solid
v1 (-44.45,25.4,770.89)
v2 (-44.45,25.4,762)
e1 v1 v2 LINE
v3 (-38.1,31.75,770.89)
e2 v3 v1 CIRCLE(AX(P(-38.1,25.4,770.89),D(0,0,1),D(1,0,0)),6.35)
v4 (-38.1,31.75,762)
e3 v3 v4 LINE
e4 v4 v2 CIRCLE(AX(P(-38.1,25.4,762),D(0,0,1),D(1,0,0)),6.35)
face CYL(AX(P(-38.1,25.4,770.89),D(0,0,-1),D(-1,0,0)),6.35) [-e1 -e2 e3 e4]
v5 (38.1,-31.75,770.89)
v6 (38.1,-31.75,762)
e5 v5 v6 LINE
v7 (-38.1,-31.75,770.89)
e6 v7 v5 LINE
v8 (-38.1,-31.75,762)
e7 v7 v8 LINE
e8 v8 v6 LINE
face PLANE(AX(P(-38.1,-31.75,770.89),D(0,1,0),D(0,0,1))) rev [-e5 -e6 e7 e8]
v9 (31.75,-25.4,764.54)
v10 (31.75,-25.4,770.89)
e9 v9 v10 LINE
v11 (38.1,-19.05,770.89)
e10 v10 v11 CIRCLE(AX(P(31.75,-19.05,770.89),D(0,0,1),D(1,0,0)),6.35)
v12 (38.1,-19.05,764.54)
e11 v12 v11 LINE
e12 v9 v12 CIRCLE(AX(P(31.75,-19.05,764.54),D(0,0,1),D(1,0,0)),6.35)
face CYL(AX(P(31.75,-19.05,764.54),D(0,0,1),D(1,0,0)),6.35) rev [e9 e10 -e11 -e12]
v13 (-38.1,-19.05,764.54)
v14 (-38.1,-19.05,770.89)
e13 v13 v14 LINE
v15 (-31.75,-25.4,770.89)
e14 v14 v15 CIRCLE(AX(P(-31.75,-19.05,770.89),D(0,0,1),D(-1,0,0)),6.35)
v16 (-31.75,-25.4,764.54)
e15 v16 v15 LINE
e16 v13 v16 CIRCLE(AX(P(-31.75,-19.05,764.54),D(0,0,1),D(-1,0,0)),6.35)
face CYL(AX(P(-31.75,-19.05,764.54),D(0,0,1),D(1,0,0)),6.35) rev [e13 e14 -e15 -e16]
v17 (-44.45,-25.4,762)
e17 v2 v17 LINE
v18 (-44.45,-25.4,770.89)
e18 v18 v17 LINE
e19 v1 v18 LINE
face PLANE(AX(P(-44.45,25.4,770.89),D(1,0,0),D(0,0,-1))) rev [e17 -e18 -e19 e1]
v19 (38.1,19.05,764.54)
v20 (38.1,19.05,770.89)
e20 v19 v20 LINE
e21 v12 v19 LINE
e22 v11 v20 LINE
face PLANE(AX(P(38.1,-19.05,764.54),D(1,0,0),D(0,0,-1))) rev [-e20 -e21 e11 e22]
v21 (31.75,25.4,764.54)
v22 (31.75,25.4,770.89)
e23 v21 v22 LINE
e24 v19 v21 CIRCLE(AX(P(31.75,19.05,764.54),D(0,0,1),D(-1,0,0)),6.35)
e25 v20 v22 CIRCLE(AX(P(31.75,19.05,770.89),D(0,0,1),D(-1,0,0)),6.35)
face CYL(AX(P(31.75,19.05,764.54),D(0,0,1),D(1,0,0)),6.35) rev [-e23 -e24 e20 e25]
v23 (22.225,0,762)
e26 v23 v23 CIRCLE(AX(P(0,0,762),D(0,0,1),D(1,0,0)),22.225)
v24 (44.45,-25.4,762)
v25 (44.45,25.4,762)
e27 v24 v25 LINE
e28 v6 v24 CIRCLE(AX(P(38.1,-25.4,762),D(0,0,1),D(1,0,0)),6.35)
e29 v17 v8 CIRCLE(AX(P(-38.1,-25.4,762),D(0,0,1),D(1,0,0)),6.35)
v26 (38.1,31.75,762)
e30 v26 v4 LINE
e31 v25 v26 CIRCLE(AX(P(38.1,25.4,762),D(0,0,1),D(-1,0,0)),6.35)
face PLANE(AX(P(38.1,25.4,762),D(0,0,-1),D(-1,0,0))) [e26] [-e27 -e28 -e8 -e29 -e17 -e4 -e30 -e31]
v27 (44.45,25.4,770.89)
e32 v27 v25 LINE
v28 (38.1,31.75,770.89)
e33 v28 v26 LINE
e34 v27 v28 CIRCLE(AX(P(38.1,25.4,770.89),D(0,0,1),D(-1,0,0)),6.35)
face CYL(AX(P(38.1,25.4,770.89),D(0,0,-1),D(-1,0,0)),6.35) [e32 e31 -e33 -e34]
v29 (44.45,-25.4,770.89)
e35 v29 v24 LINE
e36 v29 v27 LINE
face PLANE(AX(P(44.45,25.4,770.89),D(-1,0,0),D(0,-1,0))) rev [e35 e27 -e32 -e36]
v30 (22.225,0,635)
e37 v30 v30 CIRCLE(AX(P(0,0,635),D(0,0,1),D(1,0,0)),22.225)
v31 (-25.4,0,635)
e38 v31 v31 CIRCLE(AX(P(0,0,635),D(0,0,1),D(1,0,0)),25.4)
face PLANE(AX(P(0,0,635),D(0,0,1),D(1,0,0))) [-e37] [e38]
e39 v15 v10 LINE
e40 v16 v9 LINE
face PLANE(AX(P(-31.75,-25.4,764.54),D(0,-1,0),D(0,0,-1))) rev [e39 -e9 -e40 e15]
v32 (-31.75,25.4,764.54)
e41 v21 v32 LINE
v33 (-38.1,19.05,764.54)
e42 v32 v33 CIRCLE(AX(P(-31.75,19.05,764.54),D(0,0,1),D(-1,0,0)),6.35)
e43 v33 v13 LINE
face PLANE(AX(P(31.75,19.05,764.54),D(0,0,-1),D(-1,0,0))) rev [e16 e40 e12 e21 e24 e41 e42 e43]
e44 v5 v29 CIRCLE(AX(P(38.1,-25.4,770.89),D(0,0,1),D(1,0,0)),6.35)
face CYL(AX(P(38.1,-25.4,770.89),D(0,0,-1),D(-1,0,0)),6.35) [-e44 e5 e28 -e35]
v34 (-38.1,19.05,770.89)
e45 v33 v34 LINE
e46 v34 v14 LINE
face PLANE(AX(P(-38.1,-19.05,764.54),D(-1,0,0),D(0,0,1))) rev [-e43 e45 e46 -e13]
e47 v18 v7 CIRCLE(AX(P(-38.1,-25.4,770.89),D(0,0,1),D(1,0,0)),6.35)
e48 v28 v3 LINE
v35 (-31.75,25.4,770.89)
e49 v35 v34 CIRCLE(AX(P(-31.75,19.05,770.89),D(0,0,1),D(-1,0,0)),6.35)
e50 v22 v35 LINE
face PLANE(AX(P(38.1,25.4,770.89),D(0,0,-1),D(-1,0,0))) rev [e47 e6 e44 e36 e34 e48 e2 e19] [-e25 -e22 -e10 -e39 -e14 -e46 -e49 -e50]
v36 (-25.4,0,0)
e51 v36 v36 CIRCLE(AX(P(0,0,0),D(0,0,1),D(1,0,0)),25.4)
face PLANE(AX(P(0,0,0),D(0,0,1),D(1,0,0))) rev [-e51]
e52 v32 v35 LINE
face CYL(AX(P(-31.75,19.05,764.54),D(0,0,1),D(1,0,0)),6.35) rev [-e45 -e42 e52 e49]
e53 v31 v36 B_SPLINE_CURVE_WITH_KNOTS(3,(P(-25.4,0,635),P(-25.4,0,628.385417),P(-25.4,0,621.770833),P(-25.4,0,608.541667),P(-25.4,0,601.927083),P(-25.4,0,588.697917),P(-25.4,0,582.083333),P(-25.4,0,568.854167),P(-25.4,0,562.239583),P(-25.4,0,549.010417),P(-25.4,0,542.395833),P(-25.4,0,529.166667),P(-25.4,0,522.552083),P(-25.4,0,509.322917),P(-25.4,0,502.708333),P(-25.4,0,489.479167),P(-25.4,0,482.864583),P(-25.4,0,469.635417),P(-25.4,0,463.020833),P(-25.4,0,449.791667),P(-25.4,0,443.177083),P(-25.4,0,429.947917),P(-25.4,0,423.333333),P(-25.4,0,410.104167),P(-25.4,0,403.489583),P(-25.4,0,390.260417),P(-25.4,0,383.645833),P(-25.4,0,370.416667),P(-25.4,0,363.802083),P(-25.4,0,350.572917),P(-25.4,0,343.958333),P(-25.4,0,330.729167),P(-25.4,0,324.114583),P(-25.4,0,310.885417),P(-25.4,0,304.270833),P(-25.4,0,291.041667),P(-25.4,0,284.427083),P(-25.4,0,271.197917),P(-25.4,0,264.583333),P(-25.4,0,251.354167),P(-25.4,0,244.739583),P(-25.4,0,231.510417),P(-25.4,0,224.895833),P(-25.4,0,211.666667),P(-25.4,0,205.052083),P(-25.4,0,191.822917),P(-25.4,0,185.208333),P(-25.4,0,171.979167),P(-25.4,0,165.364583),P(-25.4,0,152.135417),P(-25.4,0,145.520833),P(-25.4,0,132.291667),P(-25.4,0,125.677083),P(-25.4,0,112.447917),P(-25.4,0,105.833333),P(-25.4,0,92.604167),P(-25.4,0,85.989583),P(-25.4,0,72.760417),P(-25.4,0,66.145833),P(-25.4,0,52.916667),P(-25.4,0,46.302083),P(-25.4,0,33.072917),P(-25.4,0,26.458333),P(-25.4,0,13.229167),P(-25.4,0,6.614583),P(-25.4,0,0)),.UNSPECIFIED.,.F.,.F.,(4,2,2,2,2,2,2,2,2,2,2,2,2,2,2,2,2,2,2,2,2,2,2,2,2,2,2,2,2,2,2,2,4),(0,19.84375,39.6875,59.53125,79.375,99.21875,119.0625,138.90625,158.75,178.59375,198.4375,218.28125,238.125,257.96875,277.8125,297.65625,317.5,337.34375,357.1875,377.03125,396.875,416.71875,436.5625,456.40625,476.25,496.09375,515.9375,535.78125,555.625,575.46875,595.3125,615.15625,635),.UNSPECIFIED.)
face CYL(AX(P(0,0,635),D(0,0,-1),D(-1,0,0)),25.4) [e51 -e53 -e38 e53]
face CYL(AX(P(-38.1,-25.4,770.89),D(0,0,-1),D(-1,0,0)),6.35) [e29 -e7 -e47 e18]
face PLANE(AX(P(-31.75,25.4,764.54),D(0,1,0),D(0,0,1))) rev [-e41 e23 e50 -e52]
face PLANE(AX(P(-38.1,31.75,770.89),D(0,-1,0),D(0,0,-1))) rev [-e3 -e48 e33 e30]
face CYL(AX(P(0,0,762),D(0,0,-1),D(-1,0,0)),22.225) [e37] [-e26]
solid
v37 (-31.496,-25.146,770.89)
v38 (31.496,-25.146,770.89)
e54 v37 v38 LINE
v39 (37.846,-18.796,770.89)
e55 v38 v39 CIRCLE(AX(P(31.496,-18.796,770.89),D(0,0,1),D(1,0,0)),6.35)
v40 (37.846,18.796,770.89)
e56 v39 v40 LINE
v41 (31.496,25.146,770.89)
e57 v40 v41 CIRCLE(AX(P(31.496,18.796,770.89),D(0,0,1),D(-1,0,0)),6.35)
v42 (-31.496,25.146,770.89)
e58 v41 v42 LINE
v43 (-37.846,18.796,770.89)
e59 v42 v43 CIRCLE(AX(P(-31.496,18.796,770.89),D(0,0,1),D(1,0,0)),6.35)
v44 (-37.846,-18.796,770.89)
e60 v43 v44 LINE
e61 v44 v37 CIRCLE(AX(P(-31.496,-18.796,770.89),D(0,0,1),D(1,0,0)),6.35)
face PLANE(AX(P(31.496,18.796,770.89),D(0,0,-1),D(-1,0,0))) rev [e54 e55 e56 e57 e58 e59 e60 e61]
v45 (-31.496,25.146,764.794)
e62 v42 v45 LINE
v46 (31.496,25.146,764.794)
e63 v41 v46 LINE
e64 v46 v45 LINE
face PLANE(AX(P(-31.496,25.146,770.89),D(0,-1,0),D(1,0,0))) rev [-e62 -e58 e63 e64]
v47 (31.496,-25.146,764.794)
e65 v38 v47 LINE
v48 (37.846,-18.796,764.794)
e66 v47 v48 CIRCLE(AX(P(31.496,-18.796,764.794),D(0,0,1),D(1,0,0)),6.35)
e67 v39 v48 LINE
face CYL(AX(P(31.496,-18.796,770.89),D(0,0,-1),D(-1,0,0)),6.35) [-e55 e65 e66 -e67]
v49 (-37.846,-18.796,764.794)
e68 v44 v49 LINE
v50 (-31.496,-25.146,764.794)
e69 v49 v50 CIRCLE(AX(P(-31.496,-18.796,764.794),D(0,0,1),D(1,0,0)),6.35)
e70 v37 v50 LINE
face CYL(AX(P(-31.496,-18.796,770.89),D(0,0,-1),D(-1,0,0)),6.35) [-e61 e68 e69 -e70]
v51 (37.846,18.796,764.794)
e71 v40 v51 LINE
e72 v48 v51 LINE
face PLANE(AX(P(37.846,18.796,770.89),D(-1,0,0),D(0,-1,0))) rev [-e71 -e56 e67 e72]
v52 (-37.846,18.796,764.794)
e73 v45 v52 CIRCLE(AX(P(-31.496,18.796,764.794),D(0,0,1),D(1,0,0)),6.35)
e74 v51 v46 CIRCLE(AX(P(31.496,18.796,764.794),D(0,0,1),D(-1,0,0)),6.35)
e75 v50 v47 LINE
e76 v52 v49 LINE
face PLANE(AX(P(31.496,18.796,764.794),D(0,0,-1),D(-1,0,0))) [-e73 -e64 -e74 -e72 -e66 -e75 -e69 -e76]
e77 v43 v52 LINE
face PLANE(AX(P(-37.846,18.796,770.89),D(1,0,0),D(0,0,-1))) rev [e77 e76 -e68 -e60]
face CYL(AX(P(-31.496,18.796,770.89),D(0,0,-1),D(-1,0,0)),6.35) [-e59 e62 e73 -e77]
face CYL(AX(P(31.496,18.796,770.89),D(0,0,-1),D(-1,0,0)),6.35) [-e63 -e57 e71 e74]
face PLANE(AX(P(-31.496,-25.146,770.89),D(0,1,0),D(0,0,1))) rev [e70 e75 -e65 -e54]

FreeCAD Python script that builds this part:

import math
import FreeCAD as App
import Part
import Sketcher
Q = App.Units.Quantity

doc = App.newDocument("Part")
body = doc.addObject("PartDesign::Body", "Body")

# Sketch on XY plane
sketch1 = body.newObject("Sketcher::SketchObject", "Sketch")
sketch1.AttachmentSupport = (doc.getObject("XY_Plane"), [""])
sketch1.MapMode = "FlatFace"
sketch1.addGeometry(Part.Circle(App.Vector(0, 0, 0), App.Vector(0, 0, 1), 25.4), False)
sketch1.addConstraint([
    Sketcher.Constraint("Coincident", 0, 3, -1, 1),
    Sketcher.Constraint("Diameter", 0, Q("2 in")),
])
pad1 = body.newObject("PartDesign::Pad", "Pad")
pad1.Profile = sketch1
pad1.Length = Q("25 in")

# Sketch on XY plane
sketch2 = body.newObject("Sketcher::SketchObject", "Sketch001")
sketch2.AttachmentSupport = (doc.getObject("XY_Plane"), [""])
sketch2.MapMode = "FlatFace"
sketch2.AttachmentOffset = App.Placement(App.Vector(0, 0, 25 * 25.4), App.Rotation())
sketch2.addGeometry(Part.Circle(App.Vector(0, 0, 0), App.Vector(0, 0, 1), 22.225), False)
sketch2.addConstraint([
    Sketcher.Constraint("Coincident", 0, 3, -1, 1),
    Sketcher.Constraint("Diameter", 0, Q("1.75 in")),
])
pad2 = body.newObject("PartDesign::Pad", "Pad001")
pad2.Profile = sketch2
pad2.Length = Q("5 in")

# Sketch on XY plane
sketch3 = body.newObject("Sketcher::SketchObject", "Sketch002")
sketch3.AttachmentSupport = (doc.getObject("XY_Plane"), [""])
sketch3.MapMode = "FlatFace"
sketch3.AttachmentOffset = App.Placement(App.Vector(0, 0, 30 * 25.4), App.Rotation())
sketch3.addGeometry([
    Part.LineSegment(App.Vector(38.1, 31.75, 0), App.Vector(-38.1, 31.75, 0)),  # 0
    Part.ArcOfCircle(Part.Circle(App.Vector(-38.1, 25.4, 0), App.Vector(0, 0, 1), 6.35), math.radians(90), math.radians(180)),  # 1
    Part.LineSegment(App.Vector(-44.45, 25.4, 0), App.Vector(-44.45, -25.4, 0)),  # 2
    Part.ArcOfCircle(Part.Circle(App.Vector(-38.1, -25.4, 0), App.Vector(0, 0, 1), 6.35), math.radians(180), math.radians(270)),  # 3
    Part.LineSegment(App.Vector(-38.1, -31.75, 0), App.Vector(38.1, -31.75, 0)),  # 4
    Part.ArcOfCircle(Part.Circle(App.Vector(38.1, -25.4, 0), App.Vector(0, 0, 1), 6.35), math.radians(-90), math.radians(0)),  # 5
    Part.LineSegment(App.Vector(44.45, -25.4, 0), App.Vector(44.45, 25.4, 0)),  # 6
    Part.ArcOfCircle(Part.Circle(App.Vector(38.1, 25.4, 0), App.Vector(0, 0, 1), 6.35), math.radians(0), math.radians(90)),  # 7
], False)
sketch3.addConstraint([
    Sketcher.Constraint("Tangent", 0, 2, 1, 1),
    Sketcher.Constraint("Tangent", 1, 2, 2, 1),
    Sketcher.Constraint("Tangent", 2, 2, 3, 1),
    Sketcher.Constraint("Tangent", 3, 2, 4, 1),
    Sketcher.Constraint("Tangent", 4, 2, 5, 1),
    Sketcher.Constraint("Tangent", 5, 2, 6, 1),
    Sketcher.Constraint("Tangent", 6, 2, 7, 1),
    Sketcher.Constraint("Tangent", 7, 2, 0, 1),
    Sketcher.Constraint("Horizontal", 0),
    Sketcher.Constraint("Vertical", 2),
    Sketcher.Constraint("Horizontal", 4),
    Sketcher.Constraint("Vertical", 6),
    Sketcher.Constraint("Equal", 1, 3),
    Sketcher.Constraint("Equal", 3, 5),
    Sketcher.Constraint("Equal", 5, 7),
    Sketcher.Constraint("Symmetric", 1, 3, 5, 3, -1, 1),
    Sketcher.Constraint("DistanceX", 0, 2, 0, 1, Q("3 in")),
    Sketcher.Constraint("DistanceY", 2, 2, 2, 1, Q("2 in")),
    Sketcher.Constraint("Radius", 1, Q("0.25 in")),
])
pad3 = body.newObject("PartDesign::Pad", "Pad002")
pad3.Profile = sketch3
pad3.Length = Q("0.35 in")

# Sketch on XY plane
sketch4 = body.newObject("Sketcher::SketchObject", "Sketch003")
sketch4.AttachmentSupport = (doc.getObject("XY_Plane"), [""])
sketch4.MapMode = "FlatFace"
sketch4.AttachmentOffset = App.Placement(App.Vector(0, 0, 30.35 * 25.4), App.Rotation())
sketch4.addGeometry([
    Part.LineSegment(App.Vector(-31.75, -25.4, 0), App.Vector(31.75, -25.4, 0)),  # 0
    Part.ArcOfCircle(Part.Circle(App.Vector(31.75, -19.05, 0), App.Vector(0, 0, 1), 6.35), math.radians(-90), math.radians(0)),  # 1
    Part.LineSegment(App.Vector(38.1, -19.05, 0), App.Vector(38.1, 19.05, 0)),  # 2
    Part.ArcOfCircle(Part.Circle(App.Vector(31.75, 19.05, 0), App.Vector(0, 0, 1), 6.35), math.radians(0), math.radians(90)),  # 3
    Part.LineSegment(App.Vector(31.75, 25.4, 0), App.Vector(-31.75, 25.4, 0)),  # 4
    Part.ArcOfCircle(Part.Circle(App.Vector(-31.75, 19.05, 0), App.Vector(0, 0, 1), 6.35), math.radians(90), math.radians(180)),  # 5
    Part.LineSegment(App.Vector(-38.1, 19.05, 0), App.Vector(-38.1, -19.05, 0)),  # 6
    Part.ArcOfCircle(Part.Circle(App.Vector(-31.75, -19.05, 0), App.Vector(0, 0, 1), 6.35), math.radians(180), math.radians(270)),  # 7
], False)
sketch4.addConstraint([
    Sketcher.Constraint("Tangent", 0, 2, 1, 1),
    Sketcher.Constraint("Tangent", 1, 2, 2, 1),
    Sketcher.Constraint("Tangent", 2, 2, 3, 1),
    Sketcher.Constraint("Tangent", 3, 2, 4, 1),
    Sketcher.Constraint("Tangent", 4, 2, 5, 1),
    Sketcher.Constraint("Tangent", 5, 2, 6, 1),
    Sketcher.Constraint("Tangent", 6, 2, 7, 1),
    Sketcher.Constraint("Tangent", 7, 2, 0, 1),
    Sketcher.Constraint("Horizontal", 0),
    Sketcher.Constraint("Vertical", 2),
    Sketcher.Constraint("Horizontal", 4),
    Sketcher.Constraint("Vertical", 6),
    Sketcher.Constraint("Equal", 1, 3),
    Sketcher.Constraint("Equal", 3, 5),
    Sketcher.Constraint("Equal", 5, 7),
    Sketcher.Constraint("Symmetric", 1, 3, 5, 3, -1, 1),
    Sketcher.Constraint("Radius", 1, Q("0.25 in")),
    Sketcher.Constraint("DistanceX", 0, 1, 0, 2, Q("2.5 in")),
    Sketcher.Constraint("DistanceY", 2, 1, 2, 2, Q("1.5 in")),
])
pocket1 = body.newObject("PartDesign::Pocket", "Pocket")
pocket1.Profile = sketch4
pocket1.Length = Q("0.25 in")
body2 = doc.addObject("PartDesign::Body", "Body001")

# Sketch on XY plane
sketch5 = body2.newObject("Sketcher::SketchObject", "Sketch004")
sketch5.AttachmentSupport = (doc.getObject("XY_Plane001"), [""])
sketch5.MapMode = "FlatFace"
sketch5.AttachmentOffset = App.Placement(App.Vector(0, 0, 30.11 * 25.4), App.Rotation())
sketch5.addGeometry([
    Part.LineSegment(App.Vector(31.496, 25.146, 0), App.Vector(-31.496, 25.146, 0)),  # 0
    Part.ArcOfCircle(Part.Circle(App.Vector(-31.496, 18.796, 0), App.Vector(0, 0, 1), 6.35), math.radians(90), math.radians(180)),  # 1
    Part.LineSegment(App.Vector(-37.846, 18.796, 0), App.Vector(-37.846, -18.796, 0)),  # 2
    Part.ArcOfCircle(Part.Circle(App.Vector(-31.496, -18.796, 0), App.Vector(0, 0, 1), 6.35), math.radians(180), math.radians(270)),  # 3
    Part.LineSegment(App.Vector(-31.496, -25.146, 0), App.Vector(31.496, -25.146, 0)),  # 4
    Part.ArcOfCircle(Part.Circle(App.Vector(31.496, -18.796, 0), App.Vector(0, 0, 1), 6.35), math.radians(-90), math.radians(0)),  # 5
    Part.LineSegment(App.Vector(37.846, -18.796, 0), App.Vector(37.846, 18.796, 0)),  # 6
    Part.ArcOfCircle(Part.Circle(App.Vector(31.496, 18.796, 0), App.Vector(0, 0, 1), 6.35), math.radians(0), math.radians(90)),  # 7
], False)
sketch5.addConstraint([
    Sketcher.Constraint("Tangent", 0, 2, 1, 1),
    Sketcher.Constraint("Tangent", 1, 2, 2, 1),
    Sketcher.Constraint("Tangent", 2, 2, 3, 1),
    Sketcher.Constraint("Tangent", 3, 2, 4, 1),
    Sketcher.Constraint("Tangent", 4, 2, 5, 1),
    Sketcher.Constraint("Tangent", 5, 2, 6, 1),
    Sketcher.Constraint("Tangent", 6, 2, 7, 1),
    Sketcher.Constraint("Tangent", 7, 2, 0, 1),
    Sketcher.Constraint("Horizontal", 0),
    Sketcher.Constraint("Vertical", 2),
    Sketcher.Constraint("Horizontal", 4),
    Sketcher.Constraint("Vertical", 6),
    Sketcher.Constraint("Equal", 1, 3),
    Sketcher.Constraint("Equal", 3, 5),
    Sketcher.Constraint("Equal", 5, 7),
    Sketcher.Constraint("Symmetric", 1, 3, 5, 3, -1, 1),
    Sketcher.Constraint("Radius", 1, Q("0.25 in")),
    Sketcher.Constraint("DistanceX", 0, 2, 0, 1, Q("2.48 in")),
    Sketcher.Constraint("DistanceY", 2, 2, 2, 1, Q("1.48 in")),
])
pad4 = body2.newObject("PartDesign::Pad", "Pad003")
pad4.Profile = sketch5
pad4.Length = Q("0.24 in")

doc.recompute()
